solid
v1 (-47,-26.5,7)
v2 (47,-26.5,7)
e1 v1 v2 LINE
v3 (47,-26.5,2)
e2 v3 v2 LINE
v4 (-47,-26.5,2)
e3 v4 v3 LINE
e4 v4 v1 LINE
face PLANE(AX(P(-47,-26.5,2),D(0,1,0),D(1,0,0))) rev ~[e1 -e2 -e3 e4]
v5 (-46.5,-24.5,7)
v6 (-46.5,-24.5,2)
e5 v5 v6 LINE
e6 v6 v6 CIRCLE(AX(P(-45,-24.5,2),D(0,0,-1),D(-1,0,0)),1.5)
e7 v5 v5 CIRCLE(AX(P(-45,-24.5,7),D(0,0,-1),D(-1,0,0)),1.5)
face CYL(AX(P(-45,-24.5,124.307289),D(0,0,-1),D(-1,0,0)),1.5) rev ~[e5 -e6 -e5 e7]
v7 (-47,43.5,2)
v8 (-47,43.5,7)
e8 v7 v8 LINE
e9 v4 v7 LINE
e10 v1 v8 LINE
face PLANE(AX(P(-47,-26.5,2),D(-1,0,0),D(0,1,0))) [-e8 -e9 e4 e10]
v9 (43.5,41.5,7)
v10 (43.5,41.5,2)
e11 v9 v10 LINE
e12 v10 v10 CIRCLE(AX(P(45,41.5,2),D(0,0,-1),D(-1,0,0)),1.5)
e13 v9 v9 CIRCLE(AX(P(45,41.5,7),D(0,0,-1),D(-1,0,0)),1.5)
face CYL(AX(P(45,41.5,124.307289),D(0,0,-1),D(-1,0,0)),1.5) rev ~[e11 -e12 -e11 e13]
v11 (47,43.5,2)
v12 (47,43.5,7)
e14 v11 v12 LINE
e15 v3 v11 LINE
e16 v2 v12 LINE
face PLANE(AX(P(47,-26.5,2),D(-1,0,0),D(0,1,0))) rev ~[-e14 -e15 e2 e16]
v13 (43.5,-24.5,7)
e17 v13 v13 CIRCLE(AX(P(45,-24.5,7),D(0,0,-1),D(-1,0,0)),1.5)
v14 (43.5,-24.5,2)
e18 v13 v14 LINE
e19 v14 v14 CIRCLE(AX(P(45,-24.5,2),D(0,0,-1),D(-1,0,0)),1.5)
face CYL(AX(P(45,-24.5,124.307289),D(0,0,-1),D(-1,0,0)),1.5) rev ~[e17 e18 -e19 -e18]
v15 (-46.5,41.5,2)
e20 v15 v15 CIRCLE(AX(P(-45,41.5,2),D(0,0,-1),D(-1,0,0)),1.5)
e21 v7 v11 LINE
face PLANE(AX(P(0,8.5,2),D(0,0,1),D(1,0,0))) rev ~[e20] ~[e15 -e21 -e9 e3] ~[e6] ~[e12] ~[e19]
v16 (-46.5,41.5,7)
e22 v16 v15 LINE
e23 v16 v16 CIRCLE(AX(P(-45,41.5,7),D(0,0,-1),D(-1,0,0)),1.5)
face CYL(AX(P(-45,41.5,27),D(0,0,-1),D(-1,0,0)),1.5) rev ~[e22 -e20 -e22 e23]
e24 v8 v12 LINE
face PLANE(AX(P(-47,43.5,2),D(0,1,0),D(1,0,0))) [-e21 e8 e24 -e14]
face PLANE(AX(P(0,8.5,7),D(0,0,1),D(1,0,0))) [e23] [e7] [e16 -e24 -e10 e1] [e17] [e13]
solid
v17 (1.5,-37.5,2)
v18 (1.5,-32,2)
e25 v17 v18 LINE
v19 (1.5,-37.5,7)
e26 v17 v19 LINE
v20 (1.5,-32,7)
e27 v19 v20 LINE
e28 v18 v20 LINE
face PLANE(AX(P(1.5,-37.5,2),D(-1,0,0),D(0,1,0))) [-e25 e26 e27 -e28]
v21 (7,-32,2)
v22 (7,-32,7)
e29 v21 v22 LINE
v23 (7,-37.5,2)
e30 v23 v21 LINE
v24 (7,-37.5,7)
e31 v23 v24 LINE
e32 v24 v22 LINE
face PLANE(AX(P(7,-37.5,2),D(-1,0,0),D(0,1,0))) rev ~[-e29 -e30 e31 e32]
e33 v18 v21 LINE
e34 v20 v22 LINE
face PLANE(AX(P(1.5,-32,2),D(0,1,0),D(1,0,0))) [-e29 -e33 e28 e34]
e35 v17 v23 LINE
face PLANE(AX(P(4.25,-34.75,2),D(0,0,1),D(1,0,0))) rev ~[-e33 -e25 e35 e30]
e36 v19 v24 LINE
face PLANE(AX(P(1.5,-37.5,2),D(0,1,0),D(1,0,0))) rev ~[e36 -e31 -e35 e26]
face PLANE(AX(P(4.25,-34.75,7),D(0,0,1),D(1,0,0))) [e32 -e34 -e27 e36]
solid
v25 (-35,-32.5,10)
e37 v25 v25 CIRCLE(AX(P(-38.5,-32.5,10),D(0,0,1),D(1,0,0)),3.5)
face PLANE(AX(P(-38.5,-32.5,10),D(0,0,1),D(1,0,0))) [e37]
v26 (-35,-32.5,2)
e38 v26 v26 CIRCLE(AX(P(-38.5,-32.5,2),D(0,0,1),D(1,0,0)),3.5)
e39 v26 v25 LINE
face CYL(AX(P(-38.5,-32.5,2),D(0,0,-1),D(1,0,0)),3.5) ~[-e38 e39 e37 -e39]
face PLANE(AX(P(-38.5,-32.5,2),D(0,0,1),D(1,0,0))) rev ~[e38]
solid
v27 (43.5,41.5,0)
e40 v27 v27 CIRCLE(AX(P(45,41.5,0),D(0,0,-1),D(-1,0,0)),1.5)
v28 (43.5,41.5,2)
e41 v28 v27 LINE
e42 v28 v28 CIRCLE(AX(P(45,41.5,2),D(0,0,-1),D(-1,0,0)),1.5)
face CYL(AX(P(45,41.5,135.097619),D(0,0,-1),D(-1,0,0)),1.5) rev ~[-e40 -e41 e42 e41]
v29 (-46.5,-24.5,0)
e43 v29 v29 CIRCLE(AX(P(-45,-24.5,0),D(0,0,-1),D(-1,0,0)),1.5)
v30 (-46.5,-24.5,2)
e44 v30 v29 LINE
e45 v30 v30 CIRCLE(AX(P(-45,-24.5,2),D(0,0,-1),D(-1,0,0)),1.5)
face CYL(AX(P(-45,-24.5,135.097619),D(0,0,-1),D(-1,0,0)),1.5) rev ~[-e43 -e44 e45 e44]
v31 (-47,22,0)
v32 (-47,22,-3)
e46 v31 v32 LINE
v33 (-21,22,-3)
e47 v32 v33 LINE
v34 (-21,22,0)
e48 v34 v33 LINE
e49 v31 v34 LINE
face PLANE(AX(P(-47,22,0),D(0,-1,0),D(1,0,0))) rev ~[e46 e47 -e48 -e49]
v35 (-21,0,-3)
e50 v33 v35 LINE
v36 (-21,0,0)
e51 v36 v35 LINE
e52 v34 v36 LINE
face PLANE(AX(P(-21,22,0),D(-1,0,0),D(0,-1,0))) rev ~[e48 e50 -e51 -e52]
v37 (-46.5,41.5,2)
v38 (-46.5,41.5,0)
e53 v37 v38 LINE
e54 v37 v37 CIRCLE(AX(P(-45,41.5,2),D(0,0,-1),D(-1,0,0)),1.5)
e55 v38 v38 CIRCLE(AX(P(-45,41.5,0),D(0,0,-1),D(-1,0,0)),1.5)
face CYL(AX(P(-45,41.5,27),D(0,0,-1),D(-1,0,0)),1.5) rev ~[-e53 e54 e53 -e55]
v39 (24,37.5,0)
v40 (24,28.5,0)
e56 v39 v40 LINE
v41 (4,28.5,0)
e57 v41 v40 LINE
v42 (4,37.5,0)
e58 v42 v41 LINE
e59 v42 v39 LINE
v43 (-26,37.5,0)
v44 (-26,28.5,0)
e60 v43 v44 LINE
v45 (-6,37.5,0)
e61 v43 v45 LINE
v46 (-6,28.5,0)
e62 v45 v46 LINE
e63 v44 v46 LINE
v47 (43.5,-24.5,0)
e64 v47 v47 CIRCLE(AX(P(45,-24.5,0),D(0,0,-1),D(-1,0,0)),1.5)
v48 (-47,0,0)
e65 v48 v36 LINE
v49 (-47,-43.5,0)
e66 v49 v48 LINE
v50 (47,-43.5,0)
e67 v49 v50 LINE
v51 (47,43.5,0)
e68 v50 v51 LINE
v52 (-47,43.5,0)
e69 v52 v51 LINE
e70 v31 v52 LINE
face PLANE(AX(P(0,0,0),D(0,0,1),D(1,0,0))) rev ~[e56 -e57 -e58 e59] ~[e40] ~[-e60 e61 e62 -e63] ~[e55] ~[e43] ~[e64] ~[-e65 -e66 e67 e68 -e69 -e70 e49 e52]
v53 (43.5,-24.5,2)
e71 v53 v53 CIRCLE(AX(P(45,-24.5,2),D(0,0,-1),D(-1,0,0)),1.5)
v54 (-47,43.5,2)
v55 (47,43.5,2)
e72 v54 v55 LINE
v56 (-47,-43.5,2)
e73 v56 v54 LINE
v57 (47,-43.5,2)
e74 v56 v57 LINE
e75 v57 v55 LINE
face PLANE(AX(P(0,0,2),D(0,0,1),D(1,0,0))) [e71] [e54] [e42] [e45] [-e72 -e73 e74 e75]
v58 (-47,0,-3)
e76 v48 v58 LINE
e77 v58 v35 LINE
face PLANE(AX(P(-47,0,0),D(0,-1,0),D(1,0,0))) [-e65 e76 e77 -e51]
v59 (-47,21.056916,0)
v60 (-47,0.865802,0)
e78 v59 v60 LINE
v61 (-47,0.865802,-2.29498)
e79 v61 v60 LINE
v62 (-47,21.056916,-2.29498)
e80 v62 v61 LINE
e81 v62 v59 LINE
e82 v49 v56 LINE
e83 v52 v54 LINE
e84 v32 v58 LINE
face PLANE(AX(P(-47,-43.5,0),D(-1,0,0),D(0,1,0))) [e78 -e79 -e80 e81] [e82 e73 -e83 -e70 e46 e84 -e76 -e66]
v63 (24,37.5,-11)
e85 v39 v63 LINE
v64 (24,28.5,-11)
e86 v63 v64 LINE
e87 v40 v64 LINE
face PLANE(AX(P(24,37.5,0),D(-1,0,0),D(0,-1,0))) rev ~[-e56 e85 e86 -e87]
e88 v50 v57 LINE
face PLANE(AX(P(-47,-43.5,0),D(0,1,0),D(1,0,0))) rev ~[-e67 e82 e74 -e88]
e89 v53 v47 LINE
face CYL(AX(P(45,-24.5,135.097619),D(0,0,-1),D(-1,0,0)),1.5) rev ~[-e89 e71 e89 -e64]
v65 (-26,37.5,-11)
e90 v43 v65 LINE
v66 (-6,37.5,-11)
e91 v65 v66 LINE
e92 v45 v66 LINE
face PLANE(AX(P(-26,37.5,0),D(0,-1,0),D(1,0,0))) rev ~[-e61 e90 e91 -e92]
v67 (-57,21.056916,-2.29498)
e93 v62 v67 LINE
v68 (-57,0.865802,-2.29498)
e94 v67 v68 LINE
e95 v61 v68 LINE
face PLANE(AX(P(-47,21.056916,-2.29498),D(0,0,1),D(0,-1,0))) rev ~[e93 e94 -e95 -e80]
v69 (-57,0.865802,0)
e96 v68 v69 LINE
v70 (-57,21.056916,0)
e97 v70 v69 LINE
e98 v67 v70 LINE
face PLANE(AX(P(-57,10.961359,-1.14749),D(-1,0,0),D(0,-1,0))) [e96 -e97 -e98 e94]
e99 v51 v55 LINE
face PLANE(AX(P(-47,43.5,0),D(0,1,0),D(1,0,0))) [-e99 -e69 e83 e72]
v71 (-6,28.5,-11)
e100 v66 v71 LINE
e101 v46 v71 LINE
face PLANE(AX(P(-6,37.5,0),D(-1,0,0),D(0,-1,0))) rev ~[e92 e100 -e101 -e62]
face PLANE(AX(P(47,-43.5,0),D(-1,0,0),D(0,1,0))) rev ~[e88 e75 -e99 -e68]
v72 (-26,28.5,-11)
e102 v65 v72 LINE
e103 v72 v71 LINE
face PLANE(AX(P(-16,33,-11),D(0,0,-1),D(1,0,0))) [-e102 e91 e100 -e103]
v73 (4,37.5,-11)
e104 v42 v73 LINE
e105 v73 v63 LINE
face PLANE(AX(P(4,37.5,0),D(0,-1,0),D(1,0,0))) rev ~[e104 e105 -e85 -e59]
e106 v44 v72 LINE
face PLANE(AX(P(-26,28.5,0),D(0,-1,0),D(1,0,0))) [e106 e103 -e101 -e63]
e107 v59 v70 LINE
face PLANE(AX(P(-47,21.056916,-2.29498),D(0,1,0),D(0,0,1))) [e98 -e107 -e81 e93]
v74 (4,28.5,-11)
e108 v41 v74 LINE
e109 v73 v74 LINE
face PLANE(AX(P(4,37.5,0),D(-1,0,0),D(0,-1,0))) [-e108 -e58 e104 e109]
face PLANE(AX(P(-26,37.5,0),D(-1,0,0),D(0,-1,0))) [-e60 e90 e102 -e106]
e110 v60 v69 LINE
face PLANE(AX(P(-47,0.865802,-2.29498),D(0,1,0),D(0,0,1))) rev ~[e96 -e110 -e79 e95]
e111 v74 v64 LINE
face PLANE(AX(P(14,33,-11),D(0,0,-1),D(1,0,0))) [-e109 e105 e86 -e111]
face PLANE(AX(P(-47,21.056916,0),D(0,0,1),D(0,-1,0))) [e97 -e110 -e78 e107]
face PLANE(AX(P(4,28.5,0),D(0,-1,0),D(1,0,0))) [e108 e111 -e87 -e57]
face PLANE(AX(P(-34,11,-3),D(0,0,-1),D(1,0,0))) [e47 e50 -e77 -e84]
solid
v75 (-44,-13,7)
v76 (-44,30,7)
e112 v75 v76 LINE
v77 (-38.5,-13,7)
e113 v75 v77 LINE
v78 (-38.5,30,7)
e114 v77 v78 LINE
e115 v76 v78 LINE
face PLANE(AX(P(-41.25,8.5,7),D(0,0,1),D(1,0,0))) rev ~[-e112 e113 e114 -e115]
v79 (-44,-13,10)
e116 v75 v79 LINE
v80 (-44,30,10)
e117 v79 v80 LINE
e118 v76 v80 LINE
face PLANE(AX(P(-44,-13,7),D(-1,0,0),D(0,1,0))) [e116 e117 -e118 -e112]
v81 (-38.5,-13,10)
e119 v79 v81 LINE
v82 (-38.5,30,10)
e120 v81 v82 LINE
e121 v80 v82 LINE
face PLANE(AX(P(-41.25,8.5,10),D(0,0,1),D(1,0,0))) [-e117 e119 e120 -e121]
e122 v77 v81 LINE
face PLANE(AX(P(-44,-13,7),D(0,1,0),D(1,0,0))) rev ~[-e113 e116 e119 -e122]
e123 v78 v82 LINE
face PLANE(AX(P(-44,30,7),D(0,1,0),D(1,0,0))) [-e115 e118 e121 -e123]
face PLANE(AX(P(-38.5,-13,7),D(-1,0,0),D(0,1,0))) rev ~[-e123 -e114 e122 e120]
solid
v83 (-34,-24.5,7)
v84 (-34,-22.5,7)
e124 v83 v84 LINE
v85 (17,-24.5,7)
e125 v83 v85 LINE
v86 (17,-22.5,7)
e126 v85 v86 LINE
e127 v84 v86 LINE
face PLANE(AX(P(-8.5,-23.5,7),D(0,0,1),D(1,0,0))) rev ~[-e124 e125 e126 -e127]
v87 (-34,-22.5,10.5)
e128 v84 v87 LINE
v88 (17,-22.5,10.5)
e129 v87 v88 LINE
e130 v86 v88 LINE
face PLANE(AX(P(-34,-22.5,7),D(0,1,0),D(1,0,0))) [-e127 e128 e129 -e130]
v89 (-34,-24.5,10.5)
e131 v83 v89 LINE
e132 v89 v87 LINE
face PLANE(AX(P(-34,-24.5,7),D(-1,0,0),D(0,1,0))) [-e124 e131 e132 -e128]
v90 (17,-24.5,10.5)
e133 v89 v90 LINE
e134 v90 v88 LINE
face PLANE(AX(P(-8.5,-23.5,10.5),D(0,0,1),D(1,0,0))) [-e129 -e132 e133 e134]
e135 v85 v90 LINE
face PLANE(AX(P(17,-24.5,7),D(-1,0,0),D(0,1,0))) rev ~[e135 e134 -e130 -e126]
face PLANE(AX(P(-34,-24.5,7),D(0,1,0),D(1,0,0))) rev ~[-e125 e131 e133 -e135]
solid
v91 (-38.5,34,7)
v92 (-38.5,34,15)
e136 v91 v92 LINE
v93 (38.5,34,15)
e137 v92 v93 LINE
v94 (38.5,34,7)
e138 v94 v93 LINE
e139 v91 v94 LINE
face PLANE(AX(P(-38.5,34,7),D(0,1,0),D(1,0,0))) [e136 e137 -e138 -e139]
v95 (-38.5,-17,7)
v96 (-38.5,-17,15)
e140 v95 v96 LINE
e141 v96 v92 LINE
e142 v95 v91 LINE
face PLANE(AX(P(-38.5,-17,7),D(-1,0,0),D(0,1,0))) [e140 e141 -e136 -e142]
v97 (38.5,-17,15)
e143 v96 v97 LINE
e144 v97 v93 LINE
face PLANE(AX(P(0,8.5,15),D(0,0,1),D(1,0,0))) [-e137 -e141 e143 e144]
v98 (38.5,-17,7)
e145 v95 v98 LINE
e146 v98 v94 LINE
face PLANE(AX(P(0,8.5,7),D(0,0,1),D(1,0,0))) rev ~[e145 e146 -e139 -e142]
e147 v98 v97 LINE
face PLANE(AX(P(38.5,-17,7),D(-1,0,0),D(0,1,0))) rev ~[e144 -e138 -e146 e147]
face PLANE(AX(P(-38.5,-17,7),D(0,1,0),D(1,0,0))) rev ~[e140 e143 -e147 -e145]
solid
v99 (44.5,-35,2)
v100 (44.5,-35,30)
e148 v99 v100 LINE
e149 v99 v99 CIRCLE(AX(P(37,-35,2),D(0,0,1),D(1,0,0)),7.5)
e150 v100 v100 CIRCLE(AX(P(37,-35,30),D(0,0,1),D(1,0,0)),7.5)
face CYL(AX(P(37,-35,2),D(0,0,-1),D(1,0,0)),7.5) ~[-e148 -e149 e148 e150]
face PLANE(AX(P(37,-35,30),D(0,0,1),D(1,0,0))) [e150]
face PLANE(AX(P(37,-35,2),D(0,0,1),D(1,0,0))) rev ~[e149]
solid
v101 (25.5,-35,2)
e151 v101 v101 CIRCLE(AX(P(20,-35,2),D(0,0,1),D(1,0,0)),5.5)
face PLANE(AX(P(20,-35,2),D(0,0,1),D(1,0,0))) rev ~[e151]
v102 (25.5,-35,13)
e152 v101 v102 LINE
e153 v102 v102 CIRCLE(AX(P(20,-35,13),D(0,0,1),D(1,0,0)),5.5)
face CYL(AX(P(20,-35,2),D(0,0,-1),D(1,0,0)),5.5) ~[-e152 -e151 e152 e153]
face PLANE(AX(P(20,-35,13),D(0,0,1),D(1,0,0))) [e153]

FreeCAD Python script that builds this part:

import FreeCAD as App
import Part
import Sketcher
from FreeCAD import Vector
Q = App.Units.Quantity

doc = App.newDocument("Part")
params = doc.addObject("Spreadsheet::Sheet", "Params")
for row, (alias, value) in enumerate([
    ("sketch1_width", "94 mm"),
    ("sketch1_height", "87 mm"),
    ("pad1_length", "2 mm"),
    ("sketch2_diameter", "3 mm"),
    ("hole_diameter", "3 mm"),
    ("hole_depth", "20 mm"),
    ("sketch3_diameter", "3 mm"),
    ("hole2_diameter", "3 mm"),
    ("sketch4_width", "26 mm"),
    ("sketch4_height", "22 mm"),
    ("pad2_length", "3 mm"),
    ("sketch5_width", "20 mm"),
    ("sketch5_height", "9 mm"),
    ("pad3_length", "11 mm"),
    ("pad4_length", "10 mm"),
    ("sketch7_width", "94 mm"),
    ("sketch7_height", "70 mm"),
    ("pad5_length", "5 mm"),
    ("sketch8_diameter", "3 mm"),
    ("hole3_diameter", "3 mm"),
    ("hole3_depth", "20 mm"),
    ("sketch9_diameter", "3 mm"),
    ("hole4_diameter", "3 mm"),
    ("sketch10_width", "77 mm"),
    ("sketch10_height", "51 mm"),
    ("pad6_length", "8 mm"),
    ("sketch11_height", "43 mm"),
    ("sketch11_width", "5.5 mm"),
    ("pad7_length", "3 mm"),
    ("sketch12_diameter", "15 mm"),
    ("pad8_length", "28 mm"),
    ("sketch13_diameter", "11 mm"),
    ("pad9_length", "11 mm"),
    ("sketch14_width", "5.5 mm"),
    ("pad10_length", "5 mm"),
    ("sketch15_diameter", "7 mm"),
    ("pad11_length", "8 mm"),
    ("sketch16_width", "51 mm"),
    ("sketch16_height", "2 mm"),
    ("pad12_length", "3.5 mm"),
], start=1):
    params.set(f"A{row}", alias)
    params.set(f"B{row}", "=" + value)
    params.setAlias(f"B{row}", alias)

body = doc.addObject("PartDesign::Body", "Body")

sketch1 = doc.addObject("Sketcher::SketchObject", "Sketch")
body.addObject(sketch1)
sketch1.AttachmentSupport = (doc.XY_Plane, [""])
sketch1.MapMode = "FlatFace"
sketch1.addGeometry(Part.LineSegment(Vector(-47, 44, 0), Vector(-47, -44, 0)), False)
sketch1.addGeometry(Part.LineSegment(Vector(-47, -44, 0), Vector(47, -44, 0)), False)
sketch1.addGeometry(Part.LineSegment(Vector(47, -44, 0), Vector(47, 44, 0)), False)
sketch1.addGeometry(Part.LineSegment(Vector(47, 44, 0), Vector(-47, 44, 0)), False)
sketch1.addConstraint(Sketcher.Constraint("Coincident", 0, 2, 1, 1))
sketch1.addConstraint(Sketcher.Constraint("Coincident", 1, 2, 2, 1))
sketch1.addConstraint(Sketcher.Constraint("Coincident", 2, 2, 3, 1))
sketch1.addConstraint(Sketcher.Constraint("Coincident", 3, 2, 0, 1))
sketch1.addConstraint(Sketcher.Constraint("Vertical", 0))
sketch1.addConstraint(Sketcher.Constraint("Horizontal", 1))
sketch1.addConstraint(Sketcher.Constraint("Vertical", 2))
sketch1.addConstraint(Sketcher.Constraint("Horizontal", 3))
sketch1.addConstraint(Sketcher.Constraint("Symmetric", 0, 2, 2, 2, -1, 1))
sketch1.addConstraint(Sketcher.Constraint("DistanceX", 1, 1, 1, 2, Q("94 mm")))
sketch1.addConstraint(Sketcher.Constraint("DistanceY", 0, 2, 0, 1, Q("87 mm")))
sketch1.setExpression("Constraints[9]", "Params.sketch1_width")
sketch1.setExpression("Constraints[10]", "Params.sketch1_height")
pad1 = doc.addObject("PartDesign::Pad", "Pad")
body.addObject(pad1)
pad1.Profile = sketch1
pad1.setExpression("Length", "Params.pad1_length")

sketch2 = doc.addObject("Sketcher::SketchObject", "Sketch001")
body.addObject(sketch2)
sketch2.AttachmentSupport = (doc.XY_Plane, [""])
sketch2.MapMode = "FlatFace"
sketch2.AttachmentOffset = App.Placement(Vector(0, 0, 7), App.Rotation())
sketch2.addGeometry(Part.Circle(Vector(-45, 41.5, 0), Vector(0, 0, 1), 1.5), False)
sketch2.addConstraint(Sketcher.Constraint("Diameter", 0, Q("3 mm")))
sketch2.addConstraint(Sketcher.Constraint("DistanceX", 0, 3, -1, 1, Q("45 mm")))
sketch2.addConstraint(Sketcher.Constraint("DistanceY", -1, 1, 0, 3, Q("41.5 mm")))
sketch2.setExpression("Constraints[0]", "Params.sketch2_diameter")
doc.recompute()
hole = doc.addObject("PartDesign::Hole", "Hole")
body.addObject(hole)
hole.Profile = sketch2
hole.ThreadType = "None"
hole.setExpression("Diameter", "Params.hole_diameter")
hole.DepthType = "Dimension"
hole.setExpression("Depth", "Params.hole_depth")
hole.DrillPoint = "Flat"

sketch3 = doc.addObject("Sketcher::SketchObject", "Sketch002")
body.addObject(sketch3)
sketch3.AttachmentSupport = (doc.XY_Plane, [""])
sketch3.MapMode = "FlatFace"
sketch3.AttachmentOffset = App.Placement(Vector(0, 0, 7), App.Rotation())
sketch3.addGeometry(Part.Circle(Vector(45, 41.5, 0), Vector(0, 0, 1), 1.5), False)
sketch3.addGeometry(Part.Circle(Vector(45, -24.5, 0), Vector(0, 0, 1), 1.5), False)
sketch3.addGeometry(Part.Circle(Vector(-45, -24.5, 0), Vector(0, 0, 1), 1.5), False)
sketch3.addConstraint(Sketcher.Constraint("Equal", 0, 1))
sketch3.addConstraint(Sketcher.Constraint("Equal", 1, 2))
sketch3.addConstraint(Sketcher.Constraint("Symmetric", 1, 3, 2, 3, -2))
sketch3.addConstraint(Sketcher.Constraint("Vertical", 0, 3, 1, 3))
sketch3.addConstraint(Sketcher.Constraint("Diameter", 0, Q("3 mm")))
sketch3.addConstraint(Sketcher.Constraint("DistanceX", -1, 1, 0, 3, Q("45 mm")))
sketch3.addConstraint(Sketcher.Constraint("DistanceY", 1, 3, 0, 3, Q("66 mm")))
sketch3.addConstraint(Sketcher.Constraint("DistanceY", -1, 1, 0, 3, Q("41.5 mm")))
sketch3.setExpression("Constraints[4]", "Params.sketch3_diameter")
doc.recompute()
hole2 = doc.addObject("PartDesign::Hole", "Hole001")
body.addObject(hole2)
hole2.Profile = sketch3
hole2.ThreadType = "None"
hole2.setExpression("Diameter", "Params.hole2_diameter")
hole2.DepthType = "ThroughAll"

sketch4 = doc.addObject("Sketcher::SketchObject", "Sketch003")
body.addObject(sketch4)
sketch4.AttachmentSupport = (doc.XY_Plane, [""])
sketch4.MapMode = "FlatFace"
sketch4.addGeometry(Part.LineSegment(Vector(-47, 0, 0), Vector(-47, 22, 0)), False)
sketch4.addGeometry(Part.LineSegment(Vector(-47, 22, 0), Vector(-21, 22, 0)), False)
sketch4.addGeometry(Part.LineSegment(Vector(-21, 22, 0), Vector(-21, 0, 0)), False)
sketch4.addGeometry(Part.LineSegment(Vector(-21, 0, 0), Vector(-47, 0, 0)), False)
sketch4.addConstraint(Sketcher.Constraint("Coincident", 0, 2, 1, 1))
sketch4.addConstraint(Sketcher.Constraint("Coincident", 1, 2, 2, 1))
sketch4.addConstraint(Sketcher.Constraint("Coincident", 2, 2, 3, 1))
sketch4.addConstraint(Sketcher.Constraint("Coincident", 3, 2, 0, 1))
sketch4.addConstraint(Sketcher.Constraint("Vertical", 0))
sketch4.addConstraint(Sketcher.Constraint("Horizontal", 1))
sketch4.addConstraint(Sketcher.Constraint("Vertical", 2))
sketch4.addConstraint(Sketcher.Constraint("Horizontal", 3))
sketch4.addConstraint(Sketcher.Constraint("PointOnObject", 2, 2, -1))
sketch4.addConstraint(Sketcher.Constraint("DistanceX", 1, 1, 1, 2, Q("26 mm")))
sketch4.addConstraint(Sketcher.Constraint("DistanceY", 0, 1, 0, 2, Q("22 mm")))
sketch4.addConstraint(Sketcher.Constraint("DistanceX", 0, 2, -1, 1, Q("47 mm")))
sketch4.setExpression("Constraints[9]", "Params.sketch4_width")
sketch4.setExpression("Constraints[10]", "Params.sketch4_height")
pad2 = doc.addObject("PartDesign::Pad", "Pad001")
body.addObject(pad2)
pad2.Profile = sketch4
pad2.setExpression("Length", "Params.pad2_length")
pad2.Reversed = True

sketch5 = doc.addObject("Sketcher::SketchObject", "Sketch004")
body.addObject(sketch5)
sketch5.AttachmentSupport = (doc.XY_Plane, [""])
sketch5.MapMode = "FlatFace"
sketch5.addGeometry(Part.LineSegment(Vector(4, 28, 0), Vector(4, 38, 0)), False)
sketch5.addGeometry(Part.LineSegment(Vector(4, 38, 0), Vector(24, 38, 0)), False)
sketch5.addGeometry(Part.LineSegment(Vector(24, 38, 0), Vector(24, 28, 0)), False)
sketch5.addGeometry(Part.LineSegment(Vector(24, 28, 0), Vector(4, 28, 0)), False)
sketch5.addGeometry(Part.LineSegment(Vector(-26, 28, 0), Vector(-26, 38, 0)), False)
sketch5.addGeometry(Part.LineSegment(Vector(-26, 38, 0), Vector(-6, 38, 0)), False)
sketch5.addGeometry(Part.LineSegment(Vector(-6, 38, 0), Vector(-6, 28, 0)), False)
sketch5.addGeometry(Part.LineSegment(Vector(-6, 28, 0), Vector(-26, 28, 0)), False)
sketch5.addConstraint(Sketcher.Constraint("Coincident", 0, 2, 1, 1))
sketch5.addConstraint(Sketcher.Constraint("Coincident", 1, 2, 2, 1))
sketch5.addConstraint(Sketcher.Constraint("Coincident", 2, 2, 3, 1))
sketch5.addConstraint(Sketcher.Constraint("Coincident", 3, 2, 0, 1))
sketch5.addConstraint(Sketcher.Constraint("Coincident", 4, 2, 5, 1))
sketch5.addConstraint(Sketcher.Constraint("Coincident", 5, 2, 6, 1))
sketch5.addConstraint(Sketcher.Constraint("Coincident", 6, 2, 7, 1))
sketch5.addConstraint(Sketcher.Constraint("Coincident", 7, 2, 4, 1))
sketch5.addConstraint(Sketcher.Constraint("Vertical", 0))
sketch5.addConstraint(Sketcher.Constraint("Horizontal", 1))
sketch5.addConstraint(Sketcher.Constraint("Vertical", 2))
sketch5.addConstraint(Sketcher.Constraint("Horizontal", 3))
sketch5.addConstraint(Sketcher.Constraint("Vertical", 4))
sketch5.addConstraint(Sketcher.Constraint("Horizontal", 5))
sketch5.addConstraint(Sketcher.Constraint("Vertical", 6))
sketch5.addConstraint(Sketcher.Constraint("Horizontal", 7))
sketch5.addConstraint(Sketcher.Constraint("Horizontal", 1, 2, 4, 2))
sketch5.addConstraint(Sketcher.Constraint("Horizontal", 3, 2, 6, 2))
sketch5.addConstraint(Sketcher.Constraint("Equal", 3, 5))
sketch5.addConstraint(Sketcher.Constraint("DistanceX", 1, 1, 1, 2, Q("20 mm")))
sketch5.addConstraint(Sketcher.Constraint("DistanceY", 0, 1, 0, 2, Q("9 mm")))
sketch5.addConstraint(Sketcher.Constraint("DistanceX", -1, 1, 0, 2, Q("4 mm")))
sketch5.addConstraint(Sketcher.Constraint("DistanceX", 4, 2, -1, 1, Q("26 mm")))
sketch5.addConstraint(Sketcher.Constraint("DistanceY", -1, 1, 0, 2, Q("37.5 mm")))
sketch5.setExpression("Constraints[19]", "Params.sketch5_width")
sketch5.setExpression("Constraints[20]", "Params.sketch5_height")
pad3 = doc.addObject("PartDesign::Pad", "Pad002")
body.addObject(pad3)
pad3.Profile = sketch5
pad3.setExpression("Length", "Params.pad3_length")
pad3.Reversed = True

sketch6 = doc.addObject("Sketcher::SketchObject", "Sketch005")
body.addObject(sketch6)
sketch6.AttachmentSupport = (doc.YZ_Plane, [""])
sketch6.MapMode = "FlatFace"
sketch6.AttachmentOffset = App.Placement(Vector(0, 0, -47), App.Rotation())
sketch6.addGeometry(Part.LineSegment(Vector(21.1, 0, 0), Vector(21.1, -2.3, 0)), False)
sketch6.addGeometry(Part.LineSegment(Vector(21.1, -2.3, 0), Vector(0.9, -2.3, 0)), False)
sketch6.addGeometry(Part.LineSegment(Vector(0.9, -2.3, 0), Vector(0.9, 0, 0)), False)
sketch6.addGeometry(Part.LineSegment(Vector(0.9, 0, 0), Vector(21.1, 0, 0)), False)
sketch6.addConstraint(Sketcher.Constraint("Coincident", 0, 2, 1, 1))
sketch6.addConstraint(Sketcher.Constraint("Coincident", 1, 2, 2, 1))
sketch6.addConstraint(Sketcher.Constraint("Coincident", 2, 2, 3, 1))
sketch6.addConstraint(Sketcher.Constraint("Coincident", 3, 2, 0, 1))
sketch6.addConstraint(Sketcher.Constraint("Vertical", 0))
sketch6.addConstraint(Sketcher.Constraint("Horizontal", 1))
sketch6.addConstraint(Sketcher.Constraint("Vertical", 2))
sketch6.addConstraint(Sketcher.Constraint("Horizontal", 3))
sketch6.addConstraint(Sketcher.Constraint("PointOnObject", 2, 2, -1))
sketch6.addConstraint(Sketcher.Constraint("DistanceY", 0, 2, 0, 1, Q("2.29498 mm")))
sketch6.addConstraint(Sketcher.Constraint("DistanceX", -1, 1, 1, 2, Q("0.865802 mm")))
sketch6.addConstraint(Sketcher.Constraint("DistanceX", 1, 2, 1, 1, Q("20.191115 mm")))
pad4 = doc.addObject("PartDesign::Pad", "Pad003")
body.addObject(pad4)
pad4.Profile = sketch6
pad4.setExpression("Length", "Params.pad4_length")
pad4.Reversed = True
body2 = doc.addObject("PartDesign::Body", "Body001")

sketch7 = doc.addObject("Sketcher::SketchObject", "Sketch006")
body2.addObject(sketch7)
sketch7.AttachmentSupport = (doc.getObject("XY_Plane001"), [""])
sketch7.MapMode = "FlatFace"
sketch7.AttachmentOffset = App.Placement(Vector(0, 0, 2), App.Rotation())
sketch7.addGeometry(Part.LineSegment(Vector(-47, 44, 0), Vector(-47, -26, 0)), False)
sketch7.addGeometry(Part.LineSegment(Vector(-47, -26, 0), Vector(47, -26, 0)), False)
sketch7.addGeometry(Part.LineSegment(Vector(47, -26, 0), Vector(47, 44, 0)), False)
sketch7.addGeometry(Part.LineSegment(Vector(47, 44, 0), Vector(-47, 44, 0)), False)
sketch7.addConstraint(Sketcher.Constraint("Coincident", 0, 2, 1, 1))
sketch7.addConstraint(Sketcher.Constraint("Coincident", 1, 2, 2, 1))
sketch7.addConstraint(Sketcher.Constraint("Coincident", 2, 2, 3, 1))
sketch7.addConstraint(Sketcher.Constraint("Coincident", 3, 2, 0, 1))
sketch7.addConstraint(Sketcher.Constraint("Vertical", 0))
sketch7.addConstraint(Sketcher.Constraint("Horizontal", 1))
sketch7.addConstraint(Sketcher.Constraint("Vertical", 2))
sketch7.addConstraint(Sketcher.Constraint("Horizontal", 3))
sketch7.addConstraint(Sketcher.Constraint("DistanceX", 1, 1, 1, 2, Q("94 mm")))
sketch7.addConstraint(Sketcher.Constraint("DistanceY", 0, 2, 0, 1, Q("70 mm")))
sketch7.addConstraint(Sketcher.Constraint("DistanceX", 0, 2, -1, 1, Q("47 mm")))
sketch7.addConstraint(Sketcher.Constraint("DistanceY", 0, 2, -1, 1, Q("26.5 mm")))
sketch7.setExpression("Constraints[8]", "Params.sketch7_width")
sketch7.setExpression("Constraints[9]", "Params.sketch7_height")
pad5 = doc.addObject("PartDesign::Pad", "Pad004")
body2.addObject(pad5)
pad5.Profile = sketch7
pad5.setExpression("Length", "Params.pad5_length")

sketch8 = doc.addObject("Sketcher::SketchObject", "Sketch007")
body2.addObject(sketch8)
sketch8.AttachmentSupport = (doc.getObject("XY_Plane001"), [""])
sketch8.MapMode = "FlatFace"
sketch8.AttachmentOffset = App.Placement(Vector(0, 0, 7), App.Rotation())
sketch8.addGeometry(Part.Circle(Vector(-45, 41.5, 0), Vector(0, 0, 1), 1.5), False)
sketch8.addConstraint(Sketcher.Constraint("Diameter", 0, Q("3 mm")))
sketch8.addConstraint(Sketcher.Constraint("DistanceX", 0, 3, -1, 1, Q("45 mm")))
sketch8.addConstraint(Sketcher.Constraint("DistanceY", -1, 1, 0, 3, Q("41.5 mm")))
sketch8.setExpression("Constraints[0]", "Params.sketch8_diameter")
doc.recompute()
hole3 = doc.addObject("PartDesign::Hole", "Hole002")
body2.addObject(hole3)
hole3.Profile = sketch8
hole3.ThreadType = "None"
hole3.setExpression("Diameter", "Params.hole3_diameter")
hole3.DepthType = "Dimension"
hole3.setExpression("Depth", "Params.hole3_depth")
hole3.DrillPoint = "Flat"

sketch9 = doc.addObject("Sketcher::SketchObject", "Sketch008")
body2.addObject(sketch9)
sketch9.AttachmentSupport = (doc.getObject("XY_Plane001"), [""])
sketch9.MapMode = "FlatFace"
sketch9.AttachmentOffset = App.Placement(Vector(0, 0, 7), App.Rotation())
sketch9.addGeometry(Part.Circle(Vector(45, 41.5, 0), Vector(0, 0, 1), 1.5), False)
sketch9.addGeometry(Part.Circle(Vector(45, -24.5, 0), Vector(0, 0, 1), 1.5), False)
sketch9.addGeometry(Part.Circle(Vector(-45, -24.5, 0), Vector(0, 0, 1), 1.5), False)
sketch9.addConstraint(Sketcher.Constraint("Equal", 0, 1))
sketch9.addConstraint(Sketcher.Constraint("Equal", 1, 2))
sketch9.addConstraint(Sketcher.Constraint("Symmetric", 1, 3, 2, 3, -2))
sketch9.addConstraint(Sketcher.Constraint("Vertical", 0, 3, 1, 3))
sketch9.addConstraint(Sketcher.Constraint("Diameter", 0, Q("3 mm")))
sketch9.addConstraint(Sketcher.Constraint("DistanceX", -1, 1, 0, 3, Q("45 mm")))
sketch9.addConstraint(Sketcher.Constraint("DistanceY", 1, 3, 0, 3, Q("66 mm")))
sketch9.addConstraint(Sketcher.Constraint("DistanceY", -1, 1, 0, 3, Q("41.5 mm")))
sketch9.setExpression("Constraints[4]", "Params.sketch9_diameter")
doc.recompute()
hole4 = doc.addObject("PartDesign::Hole", "Hole003")
body2.addObject(hole4)
hole4.Profile = sketch9
hole4.ThreadType = "None"
hole4.setExpression("Diameter", "Params.hole4_diameter")
hole4.DepthType = "ThroughAll"
body3 = doc.addObject("PartDesign::Body", "Body002")

sketch10 = doc.addObject("Sketcher::SketchObject", "Sketch009")
body3.addObject(sketch10)
sketch10.AttachmentSupport = (doc.getObject("XY_Plane002"), [""])
sketch10.MapMode = "FlatFace"
sketch10.AttachmentOffset = App.Placement(Vector(0, 0, 7), App.Rotation())
sketch10.addGeometry(Part.LineSegment(Vector(-38, 34, 0), Vector(-38, -17, 0)), False)
sketch10.addGeometry(Part.LineSegment(Vector(-38, -17, 0), Vector(38, -17, 0)), False)
sketch10.addGeometry(Part.LineSegment(Vector(38, -17, 0), Vector(38, 34, 0)), False)
sketch10.addGeometry(Part.LineSegment(Vector(38, 34, 0), Vector(-38, 34, 0)), False)
sketch10.addConstraint(Sketcher.Constraint("Coincident", 0, 2, 1, 1))
sketch10.addConstraint(Sketcher.Constraint("Coincident", 1, 2, 2, 1))
sketch10.addConstraint(Sketcher.Constraint("Coincident", 2, 2, 3, 1))
sketch10.addConstraint(Sketcher.Constraint("Coincident", 3, 2, 0, 1))
sketch10.addConstraint(Sketcher.Constraint("Vertical", 0))
sketch10.addConstraint(Sketcher.Constraint("Horizontal", 1))
sketch10.addConstraint(Sketcher.Constraint("Vertical", 2))
sketch10.addConstraint(Sketcher.Constraint("Horizontal", 3))
sketch10.addConstraint(Sketcher.Constraint("DistanceX", 1, 1, 1, 2, Q("77 mm")))
sketch10.addConstraint(Sketcher.Constraint("DistanceY", 0, 2, 0, 1, Q("51 mm")))
sketch10.addConstraint(Sketcher.Constraint("DistanceY", 0, 2, -1, 1, Q("17 mm")))
sketch10.addConstraint(Sketcher.Constraint("DistanceX", 0, 2, -1, 1, Q("38.5 mm")))
sketch10.setExpression("Constraints[8]", "Params.sketch10_width")
sketch10.setExpression("Constraints[9]", "Params.sketch10_height")
pad6 = doc.addObject("PartDesign::Pad", "Pad005")
body3.addObject(pad6)
pad6.Profile = sketch10
pad6.setExpression("Length", "Params.pad6_length")
body4 = doc.addObject("PartDesign::Body", "Body003")

sketch11 = doc.addObject("Sketcher::SketchObject", "Sketch010")
body4.addObject(sketch11)
sketch11.AttachmentSupport = (doc.getObject("XY_Plane003"), [""])
sketch11.MapMode = "FlatFace"
sketch11.AttachmentOffset = App.Placement(Vector(0, 0, 7), App.Rotation())
sketch11.addGeometry(Part.LineSegment(Vector(-44, 30, 0), Vector(-44, -13, 0)), False)
sketch11.addGeometry(Part.LineSegment(Vector(-44, -13, 0), Vector(-38, -13, 0)), False)
sketch11.addGeometry(Part.LineSegment(Vector(-38, -13, 0), Vector(-38, 30, 0)), False)
sketch11.addGeometry(Part.LineSegment(Vector(-38, 30, 0), Vector(-44, 30, 0)), False)
sketch11.addConstraint(Sketcher.Constraint("Coincident", 0, 2, 1, 1))
sketch11.addConstraint(Sketcher.Constraint("Coincident", 1, 2, 2, 1))
sketch11.addConstraint(Sketcher.Constraint("Coincident", 2, 2, 3, 1))
sketch11.addConstraint(Sketcher.Constraint("Coincident", 3, 2, 0, 1))
sketch11.addConstraint(Sketcher.Constraint("Vertical", 0))
sketch11.addConstraint(Sketcher.Constraint("Horizontal", 1))
sketch11.addConstraint(Sketcher.Constraint("Vertical", 2))
sketch11.addConstraint(Sketcher.Constraint("Horizontal", 3))
sketch11.addConstraint(Sketcher.Constraint("DistanceY", 0, 2, 0, 1, Q("43 mm")))
sketch11.addConstraint(Sketcher.Constraint("DistanceX", 1, 1, 1, 2, Q("5.5 mm")))
sketch11.addConstraint(Sketcher.Constraint("DistanceX", 0, 2, -1, 1, Q("44 mm")))
sketch11.addConstraint(Sketcher.Constraint("DistanceY", 0, 2, -1, 1, Q("13 mm")))
sketch11.setExpression("Constraints[8]", "Params.sketch11_height")
sketch11.setExpression("Constraints[9]", "Params.sketch11_width")
pad7 = doc.addObject("PartDesign::Pad", "Pad006")
body4.addObject(pad7)
pad7.Profile = sketch11
pad7.setExpression("Length", "Params.pad7_length")
body5 = doc.addObject("PartDesign::Body", "Body004")

sketch12 = doc.addObject("Sketcher::SketchObject", "Sketch011")
body5.addObject(sketch12)
sketch12.AttachmentSupport = (doc.getObject("XY_Plane004"), [""])
sketch12.MapMode = "FlatFace"
sketch12.AttachmentOffset = App.Placement(Vector(0, 0, 2), App.Rotation())
sketch12.addGeometry(Part.Circle(Vector(37, -35, 0), Vector(0, 0, 1), 8), False)
sketch12.addConstraint(Sketcher.Constraint("Diameter", 0, Q("15 mm")))
sketch12.addConstraint(Sketcher.Constraint("DistanceX", -1, 1, 0, 3, Q("37 mm")))
sketch12.addConstraint(Sketcher.Constraint("DistanceY", 0, 3, -1, 1, Q("35 mm")))
sketch12.setExpression("Constraints[0]", "Params.sketch12_diameter")
pad8 = doc.addObject("PartDesign::Pad", "Pad007")
body5.addObject(pad8)
pad8.Profile = sketch12
pad8.setExpression("Length", "Params.pad8_length")
body6 = doc.addObject("PartDesign::Body", "Body005")

sketch13 = doc.addObject("Sketcher::SketchObject", "Sketch012")
body6.addObject(sketch13)
sketch13.AttachmentSupport = (doc.getObject("XY_Plane005"), [""])
sketch13.MapMode = "FlatFace"
sketch13.AttachmentOffset = App.Placement(Vector(0, 0, 2), App.Rotation())
sketch13.addGeometry(Part.Circle(Vector(20, -35, 0), Vector(0, 0, 1), 6), False)
sketch13.addConstraint(Sketcher.Constraint("Diameter", 0, Q("11 mm")))
sketch13.addConstraint(Sketcher.Constraint("DistanceX", -1, 1, 0, 3, Q("20 mm")))
sketch13.addConstraint(Sketcher.Constraint("DistanceY", 0, 3, -1, 1, Q("35 mm")))
sketch13.setExpression("Constraints[0]", "Params.sketch13_diameter")
pad9 = doc.addObject("PartDesign::Pad", "Pad008")
body6.addObject(pad9)
pad9.Profile = sketch13
pad9.setExpression("Length", "Params.pad9_length")
body7 = doc.addObject("PartDesign::Body", "Body006")

sketch14 = doc.addObject("Sketcher::SketchObject", "Sketch013")
body7.addObject(sketch14)
sketch14.AttachmentSupport = (doc.getObject("XY_Plane006"), [""])
sketch14.MapMode = "FlatFace"
sketch14.AttachmentOffset = App.Placement(Vector(0, 0, 2), App.Rotation())
sketch14.addGeometry(Part.LineSegment(Vector(2, -32, 0), Vector(2, -38, 0)), False)
sketch14.addGeometry(Part.LineSegment(Vector(2, -38, 0), Vector(7, -38, 0)), False)
sketch14.addGeometry(Part.LineSegment(Vector(7, -38, 0), Vector(7, -32, 0)), False)
sketch14.addGeometry(Part.LineSegment(Vector(7, -32, 0), Vector(2, -32, 0)), False)
sketch14.addConstraint(Sketcher.Constraint("Coincident", 0, 2, 1, 1))
sketch14.addConstraint(Sketcher.Constraint("Coincident", 1, 2, 2, 1))
sketch14.addConstraint(Sketcher.Constraint("Coincident", 2, 2, 3, 1))
sketch14.addConstraint(Sketcher.Constraint("Coincident", 3, 2, 0, 1))
sketch14.addConstraint(Sketcher.Constraint("Vertical", 0))
sketch14.addConstraint(Sketcher.Constraint("Horizontal", 1))
sketch14.addConstraint(Sketcher.Constraint("Vertical", 2))
sketch14.addConstraint(Sketcher.Constraint("Horizontal", 3))
sketch14.addConstraint(Sketcher.Constraint("Equal", 3, 0))
sketch14.addConstraint(Sketcher.Constraint("DistanceX", 1, 1, 1, 2, Q("5.5 mm")))
sketch14.addConstraint(Sketcher.Constraint("DistanceX", -1, 1, 1, 2, Q("7 mm")))
sketch14.addConstraint(Sketcher.Constraint("DistanceY", 2, 2, -1, 1, Q("32 mm")))
sketch14.setExpression("Constraints[9]", "Params.sketch14_width")
pad10 = doc.addObject("PartDesign::Pad", "Pad009")
body7.addObject(pad10)
pad10.Profile = sketch14
pad10.setExpression("Length", "Params.pad10_length")
body8 = doc.addObject("PartDesign::Body", "Body007")

sketch15 = doc.addObject("Sketcher::SketchObject", "Sketch014")
body8.addObject(sketch15)
sketch15.AttachmentSupport = (doc.getObject("XY_Plane007"), [""])
sketch15.MapMode = "FlatFace"
sketch15.AttachmentOffset = App.Placement(Vector(0, 0, 2), App.Rotation())
sketch15.addGeometry(Part.Circle(Vector(-38.5, -32.5, 0), Vector(0, 0, 1), 3.5), False)
sketch15.addConstraint(Sketcher.Constraint("Diameter", 0, Q("7 mm")))
sketch15.addConstraint(Sketcher.Constraint("DistanceX", 0, 3, -1, 1, Q("38.5 mm")))
sketch15.addConstraint(Sketcher.Constraint("DistanceY", 0, 3, -1, 1, Q("32.5 mm")))
sketch15.setExpression("Constraints[0]", "Params.sketch15_diameter")
pad11 = doc.addObject("PartDesign::Pad", "Pad010")
body8.addObject(pad11)
pad11.Profile = sketch15
pad11.setExpression("Length", "Params.pad11_length")
body9 = doc.addObject("PartDesign::Body", "Body008")

sketch16 = doc.addObject("Sketcher::SketchObject", "Sketch015")
body9.addObject(sketch16)
sketch16.AttachmentSupport = (doc.getObject("XY_Plane008"), [""])
sketch16.MapMode = "FlatFace"
sketch16.AttachmentOffset = App.Placement(Vector(0, 0, 7), App.Rotation())
sketch16.addGeometry(Part.LineSegment(Vector(-34, -22.5, 0), Vector(-34, -24.5, 0)), False)
sketch16.addGeometry(Part.LineSegment(Vector(-34, -24.5, 0), Vector(17, -24.5, 0)), False)
sketch16.addGeometry(Part.LineSegment(Vector(17, -24.5, 0), Vector(17, -22.5, 0)), False)
sketch16.addGeometry(Part.LineSegment(Vector(17, -22.5, 0), Vector(-34, -22.5, 0)), False)
sketch16.addConstraint(Sketcher.Constraint("Coincident", 0, 2, 1, 1))
sketch16.addConstraint(Sketcher.Constraint("Coincident", 1, 2, 2, 1))
sketch16.addConstraint(Sketcher.Constraint("Coincident", 2, 2, 3, 1))
sketch16.addConstraint(Sketcher.Constraint("Coincident", 3, 2, 0, 1))
sketch16.addConstraint(Sketcher.Constraint("Vertical", 0))
sketch16.addConstraint(Sketcher.Constraint("Horizontal", 1))
sketch16.addConstraint(Sketcher.Constraint("Vertical", 2))
sketch16.addConstraint(Sketcher.Constraint("Horizontal", 3))
sketch16.addConstraint(Sketcher.Constraint("DistanceX", 1, 1, 1, 2, Q("51 mm")))
sketch16.addConstraint(Sketcher.Constraint("DistanceY", 0, 2, 0, 1, Q("2 mm")))
sketch16.addConstraint(Sketcher.Constraint("DistanceX", 0, 2, -1, 1, Q("34 mm")))
sketch16.addConstraint(Sketcher.Constraint("DistanceY", 0, 2, -1, 1, Q("24.5 mm")))
sketch16.setExpression("Constraints[8]", "Params.sketch16_width")
sketch16.setExpression("Constraints[9]", "Params.sketch16_height")
pad12 = doc.addObject("PartDesign::Pad", "Pad011")
body9.addObject(pad12)
pad12.Profile = sketch16
pad12.setExpression("Length", "Params.pad12_length")

doc.recompute()
